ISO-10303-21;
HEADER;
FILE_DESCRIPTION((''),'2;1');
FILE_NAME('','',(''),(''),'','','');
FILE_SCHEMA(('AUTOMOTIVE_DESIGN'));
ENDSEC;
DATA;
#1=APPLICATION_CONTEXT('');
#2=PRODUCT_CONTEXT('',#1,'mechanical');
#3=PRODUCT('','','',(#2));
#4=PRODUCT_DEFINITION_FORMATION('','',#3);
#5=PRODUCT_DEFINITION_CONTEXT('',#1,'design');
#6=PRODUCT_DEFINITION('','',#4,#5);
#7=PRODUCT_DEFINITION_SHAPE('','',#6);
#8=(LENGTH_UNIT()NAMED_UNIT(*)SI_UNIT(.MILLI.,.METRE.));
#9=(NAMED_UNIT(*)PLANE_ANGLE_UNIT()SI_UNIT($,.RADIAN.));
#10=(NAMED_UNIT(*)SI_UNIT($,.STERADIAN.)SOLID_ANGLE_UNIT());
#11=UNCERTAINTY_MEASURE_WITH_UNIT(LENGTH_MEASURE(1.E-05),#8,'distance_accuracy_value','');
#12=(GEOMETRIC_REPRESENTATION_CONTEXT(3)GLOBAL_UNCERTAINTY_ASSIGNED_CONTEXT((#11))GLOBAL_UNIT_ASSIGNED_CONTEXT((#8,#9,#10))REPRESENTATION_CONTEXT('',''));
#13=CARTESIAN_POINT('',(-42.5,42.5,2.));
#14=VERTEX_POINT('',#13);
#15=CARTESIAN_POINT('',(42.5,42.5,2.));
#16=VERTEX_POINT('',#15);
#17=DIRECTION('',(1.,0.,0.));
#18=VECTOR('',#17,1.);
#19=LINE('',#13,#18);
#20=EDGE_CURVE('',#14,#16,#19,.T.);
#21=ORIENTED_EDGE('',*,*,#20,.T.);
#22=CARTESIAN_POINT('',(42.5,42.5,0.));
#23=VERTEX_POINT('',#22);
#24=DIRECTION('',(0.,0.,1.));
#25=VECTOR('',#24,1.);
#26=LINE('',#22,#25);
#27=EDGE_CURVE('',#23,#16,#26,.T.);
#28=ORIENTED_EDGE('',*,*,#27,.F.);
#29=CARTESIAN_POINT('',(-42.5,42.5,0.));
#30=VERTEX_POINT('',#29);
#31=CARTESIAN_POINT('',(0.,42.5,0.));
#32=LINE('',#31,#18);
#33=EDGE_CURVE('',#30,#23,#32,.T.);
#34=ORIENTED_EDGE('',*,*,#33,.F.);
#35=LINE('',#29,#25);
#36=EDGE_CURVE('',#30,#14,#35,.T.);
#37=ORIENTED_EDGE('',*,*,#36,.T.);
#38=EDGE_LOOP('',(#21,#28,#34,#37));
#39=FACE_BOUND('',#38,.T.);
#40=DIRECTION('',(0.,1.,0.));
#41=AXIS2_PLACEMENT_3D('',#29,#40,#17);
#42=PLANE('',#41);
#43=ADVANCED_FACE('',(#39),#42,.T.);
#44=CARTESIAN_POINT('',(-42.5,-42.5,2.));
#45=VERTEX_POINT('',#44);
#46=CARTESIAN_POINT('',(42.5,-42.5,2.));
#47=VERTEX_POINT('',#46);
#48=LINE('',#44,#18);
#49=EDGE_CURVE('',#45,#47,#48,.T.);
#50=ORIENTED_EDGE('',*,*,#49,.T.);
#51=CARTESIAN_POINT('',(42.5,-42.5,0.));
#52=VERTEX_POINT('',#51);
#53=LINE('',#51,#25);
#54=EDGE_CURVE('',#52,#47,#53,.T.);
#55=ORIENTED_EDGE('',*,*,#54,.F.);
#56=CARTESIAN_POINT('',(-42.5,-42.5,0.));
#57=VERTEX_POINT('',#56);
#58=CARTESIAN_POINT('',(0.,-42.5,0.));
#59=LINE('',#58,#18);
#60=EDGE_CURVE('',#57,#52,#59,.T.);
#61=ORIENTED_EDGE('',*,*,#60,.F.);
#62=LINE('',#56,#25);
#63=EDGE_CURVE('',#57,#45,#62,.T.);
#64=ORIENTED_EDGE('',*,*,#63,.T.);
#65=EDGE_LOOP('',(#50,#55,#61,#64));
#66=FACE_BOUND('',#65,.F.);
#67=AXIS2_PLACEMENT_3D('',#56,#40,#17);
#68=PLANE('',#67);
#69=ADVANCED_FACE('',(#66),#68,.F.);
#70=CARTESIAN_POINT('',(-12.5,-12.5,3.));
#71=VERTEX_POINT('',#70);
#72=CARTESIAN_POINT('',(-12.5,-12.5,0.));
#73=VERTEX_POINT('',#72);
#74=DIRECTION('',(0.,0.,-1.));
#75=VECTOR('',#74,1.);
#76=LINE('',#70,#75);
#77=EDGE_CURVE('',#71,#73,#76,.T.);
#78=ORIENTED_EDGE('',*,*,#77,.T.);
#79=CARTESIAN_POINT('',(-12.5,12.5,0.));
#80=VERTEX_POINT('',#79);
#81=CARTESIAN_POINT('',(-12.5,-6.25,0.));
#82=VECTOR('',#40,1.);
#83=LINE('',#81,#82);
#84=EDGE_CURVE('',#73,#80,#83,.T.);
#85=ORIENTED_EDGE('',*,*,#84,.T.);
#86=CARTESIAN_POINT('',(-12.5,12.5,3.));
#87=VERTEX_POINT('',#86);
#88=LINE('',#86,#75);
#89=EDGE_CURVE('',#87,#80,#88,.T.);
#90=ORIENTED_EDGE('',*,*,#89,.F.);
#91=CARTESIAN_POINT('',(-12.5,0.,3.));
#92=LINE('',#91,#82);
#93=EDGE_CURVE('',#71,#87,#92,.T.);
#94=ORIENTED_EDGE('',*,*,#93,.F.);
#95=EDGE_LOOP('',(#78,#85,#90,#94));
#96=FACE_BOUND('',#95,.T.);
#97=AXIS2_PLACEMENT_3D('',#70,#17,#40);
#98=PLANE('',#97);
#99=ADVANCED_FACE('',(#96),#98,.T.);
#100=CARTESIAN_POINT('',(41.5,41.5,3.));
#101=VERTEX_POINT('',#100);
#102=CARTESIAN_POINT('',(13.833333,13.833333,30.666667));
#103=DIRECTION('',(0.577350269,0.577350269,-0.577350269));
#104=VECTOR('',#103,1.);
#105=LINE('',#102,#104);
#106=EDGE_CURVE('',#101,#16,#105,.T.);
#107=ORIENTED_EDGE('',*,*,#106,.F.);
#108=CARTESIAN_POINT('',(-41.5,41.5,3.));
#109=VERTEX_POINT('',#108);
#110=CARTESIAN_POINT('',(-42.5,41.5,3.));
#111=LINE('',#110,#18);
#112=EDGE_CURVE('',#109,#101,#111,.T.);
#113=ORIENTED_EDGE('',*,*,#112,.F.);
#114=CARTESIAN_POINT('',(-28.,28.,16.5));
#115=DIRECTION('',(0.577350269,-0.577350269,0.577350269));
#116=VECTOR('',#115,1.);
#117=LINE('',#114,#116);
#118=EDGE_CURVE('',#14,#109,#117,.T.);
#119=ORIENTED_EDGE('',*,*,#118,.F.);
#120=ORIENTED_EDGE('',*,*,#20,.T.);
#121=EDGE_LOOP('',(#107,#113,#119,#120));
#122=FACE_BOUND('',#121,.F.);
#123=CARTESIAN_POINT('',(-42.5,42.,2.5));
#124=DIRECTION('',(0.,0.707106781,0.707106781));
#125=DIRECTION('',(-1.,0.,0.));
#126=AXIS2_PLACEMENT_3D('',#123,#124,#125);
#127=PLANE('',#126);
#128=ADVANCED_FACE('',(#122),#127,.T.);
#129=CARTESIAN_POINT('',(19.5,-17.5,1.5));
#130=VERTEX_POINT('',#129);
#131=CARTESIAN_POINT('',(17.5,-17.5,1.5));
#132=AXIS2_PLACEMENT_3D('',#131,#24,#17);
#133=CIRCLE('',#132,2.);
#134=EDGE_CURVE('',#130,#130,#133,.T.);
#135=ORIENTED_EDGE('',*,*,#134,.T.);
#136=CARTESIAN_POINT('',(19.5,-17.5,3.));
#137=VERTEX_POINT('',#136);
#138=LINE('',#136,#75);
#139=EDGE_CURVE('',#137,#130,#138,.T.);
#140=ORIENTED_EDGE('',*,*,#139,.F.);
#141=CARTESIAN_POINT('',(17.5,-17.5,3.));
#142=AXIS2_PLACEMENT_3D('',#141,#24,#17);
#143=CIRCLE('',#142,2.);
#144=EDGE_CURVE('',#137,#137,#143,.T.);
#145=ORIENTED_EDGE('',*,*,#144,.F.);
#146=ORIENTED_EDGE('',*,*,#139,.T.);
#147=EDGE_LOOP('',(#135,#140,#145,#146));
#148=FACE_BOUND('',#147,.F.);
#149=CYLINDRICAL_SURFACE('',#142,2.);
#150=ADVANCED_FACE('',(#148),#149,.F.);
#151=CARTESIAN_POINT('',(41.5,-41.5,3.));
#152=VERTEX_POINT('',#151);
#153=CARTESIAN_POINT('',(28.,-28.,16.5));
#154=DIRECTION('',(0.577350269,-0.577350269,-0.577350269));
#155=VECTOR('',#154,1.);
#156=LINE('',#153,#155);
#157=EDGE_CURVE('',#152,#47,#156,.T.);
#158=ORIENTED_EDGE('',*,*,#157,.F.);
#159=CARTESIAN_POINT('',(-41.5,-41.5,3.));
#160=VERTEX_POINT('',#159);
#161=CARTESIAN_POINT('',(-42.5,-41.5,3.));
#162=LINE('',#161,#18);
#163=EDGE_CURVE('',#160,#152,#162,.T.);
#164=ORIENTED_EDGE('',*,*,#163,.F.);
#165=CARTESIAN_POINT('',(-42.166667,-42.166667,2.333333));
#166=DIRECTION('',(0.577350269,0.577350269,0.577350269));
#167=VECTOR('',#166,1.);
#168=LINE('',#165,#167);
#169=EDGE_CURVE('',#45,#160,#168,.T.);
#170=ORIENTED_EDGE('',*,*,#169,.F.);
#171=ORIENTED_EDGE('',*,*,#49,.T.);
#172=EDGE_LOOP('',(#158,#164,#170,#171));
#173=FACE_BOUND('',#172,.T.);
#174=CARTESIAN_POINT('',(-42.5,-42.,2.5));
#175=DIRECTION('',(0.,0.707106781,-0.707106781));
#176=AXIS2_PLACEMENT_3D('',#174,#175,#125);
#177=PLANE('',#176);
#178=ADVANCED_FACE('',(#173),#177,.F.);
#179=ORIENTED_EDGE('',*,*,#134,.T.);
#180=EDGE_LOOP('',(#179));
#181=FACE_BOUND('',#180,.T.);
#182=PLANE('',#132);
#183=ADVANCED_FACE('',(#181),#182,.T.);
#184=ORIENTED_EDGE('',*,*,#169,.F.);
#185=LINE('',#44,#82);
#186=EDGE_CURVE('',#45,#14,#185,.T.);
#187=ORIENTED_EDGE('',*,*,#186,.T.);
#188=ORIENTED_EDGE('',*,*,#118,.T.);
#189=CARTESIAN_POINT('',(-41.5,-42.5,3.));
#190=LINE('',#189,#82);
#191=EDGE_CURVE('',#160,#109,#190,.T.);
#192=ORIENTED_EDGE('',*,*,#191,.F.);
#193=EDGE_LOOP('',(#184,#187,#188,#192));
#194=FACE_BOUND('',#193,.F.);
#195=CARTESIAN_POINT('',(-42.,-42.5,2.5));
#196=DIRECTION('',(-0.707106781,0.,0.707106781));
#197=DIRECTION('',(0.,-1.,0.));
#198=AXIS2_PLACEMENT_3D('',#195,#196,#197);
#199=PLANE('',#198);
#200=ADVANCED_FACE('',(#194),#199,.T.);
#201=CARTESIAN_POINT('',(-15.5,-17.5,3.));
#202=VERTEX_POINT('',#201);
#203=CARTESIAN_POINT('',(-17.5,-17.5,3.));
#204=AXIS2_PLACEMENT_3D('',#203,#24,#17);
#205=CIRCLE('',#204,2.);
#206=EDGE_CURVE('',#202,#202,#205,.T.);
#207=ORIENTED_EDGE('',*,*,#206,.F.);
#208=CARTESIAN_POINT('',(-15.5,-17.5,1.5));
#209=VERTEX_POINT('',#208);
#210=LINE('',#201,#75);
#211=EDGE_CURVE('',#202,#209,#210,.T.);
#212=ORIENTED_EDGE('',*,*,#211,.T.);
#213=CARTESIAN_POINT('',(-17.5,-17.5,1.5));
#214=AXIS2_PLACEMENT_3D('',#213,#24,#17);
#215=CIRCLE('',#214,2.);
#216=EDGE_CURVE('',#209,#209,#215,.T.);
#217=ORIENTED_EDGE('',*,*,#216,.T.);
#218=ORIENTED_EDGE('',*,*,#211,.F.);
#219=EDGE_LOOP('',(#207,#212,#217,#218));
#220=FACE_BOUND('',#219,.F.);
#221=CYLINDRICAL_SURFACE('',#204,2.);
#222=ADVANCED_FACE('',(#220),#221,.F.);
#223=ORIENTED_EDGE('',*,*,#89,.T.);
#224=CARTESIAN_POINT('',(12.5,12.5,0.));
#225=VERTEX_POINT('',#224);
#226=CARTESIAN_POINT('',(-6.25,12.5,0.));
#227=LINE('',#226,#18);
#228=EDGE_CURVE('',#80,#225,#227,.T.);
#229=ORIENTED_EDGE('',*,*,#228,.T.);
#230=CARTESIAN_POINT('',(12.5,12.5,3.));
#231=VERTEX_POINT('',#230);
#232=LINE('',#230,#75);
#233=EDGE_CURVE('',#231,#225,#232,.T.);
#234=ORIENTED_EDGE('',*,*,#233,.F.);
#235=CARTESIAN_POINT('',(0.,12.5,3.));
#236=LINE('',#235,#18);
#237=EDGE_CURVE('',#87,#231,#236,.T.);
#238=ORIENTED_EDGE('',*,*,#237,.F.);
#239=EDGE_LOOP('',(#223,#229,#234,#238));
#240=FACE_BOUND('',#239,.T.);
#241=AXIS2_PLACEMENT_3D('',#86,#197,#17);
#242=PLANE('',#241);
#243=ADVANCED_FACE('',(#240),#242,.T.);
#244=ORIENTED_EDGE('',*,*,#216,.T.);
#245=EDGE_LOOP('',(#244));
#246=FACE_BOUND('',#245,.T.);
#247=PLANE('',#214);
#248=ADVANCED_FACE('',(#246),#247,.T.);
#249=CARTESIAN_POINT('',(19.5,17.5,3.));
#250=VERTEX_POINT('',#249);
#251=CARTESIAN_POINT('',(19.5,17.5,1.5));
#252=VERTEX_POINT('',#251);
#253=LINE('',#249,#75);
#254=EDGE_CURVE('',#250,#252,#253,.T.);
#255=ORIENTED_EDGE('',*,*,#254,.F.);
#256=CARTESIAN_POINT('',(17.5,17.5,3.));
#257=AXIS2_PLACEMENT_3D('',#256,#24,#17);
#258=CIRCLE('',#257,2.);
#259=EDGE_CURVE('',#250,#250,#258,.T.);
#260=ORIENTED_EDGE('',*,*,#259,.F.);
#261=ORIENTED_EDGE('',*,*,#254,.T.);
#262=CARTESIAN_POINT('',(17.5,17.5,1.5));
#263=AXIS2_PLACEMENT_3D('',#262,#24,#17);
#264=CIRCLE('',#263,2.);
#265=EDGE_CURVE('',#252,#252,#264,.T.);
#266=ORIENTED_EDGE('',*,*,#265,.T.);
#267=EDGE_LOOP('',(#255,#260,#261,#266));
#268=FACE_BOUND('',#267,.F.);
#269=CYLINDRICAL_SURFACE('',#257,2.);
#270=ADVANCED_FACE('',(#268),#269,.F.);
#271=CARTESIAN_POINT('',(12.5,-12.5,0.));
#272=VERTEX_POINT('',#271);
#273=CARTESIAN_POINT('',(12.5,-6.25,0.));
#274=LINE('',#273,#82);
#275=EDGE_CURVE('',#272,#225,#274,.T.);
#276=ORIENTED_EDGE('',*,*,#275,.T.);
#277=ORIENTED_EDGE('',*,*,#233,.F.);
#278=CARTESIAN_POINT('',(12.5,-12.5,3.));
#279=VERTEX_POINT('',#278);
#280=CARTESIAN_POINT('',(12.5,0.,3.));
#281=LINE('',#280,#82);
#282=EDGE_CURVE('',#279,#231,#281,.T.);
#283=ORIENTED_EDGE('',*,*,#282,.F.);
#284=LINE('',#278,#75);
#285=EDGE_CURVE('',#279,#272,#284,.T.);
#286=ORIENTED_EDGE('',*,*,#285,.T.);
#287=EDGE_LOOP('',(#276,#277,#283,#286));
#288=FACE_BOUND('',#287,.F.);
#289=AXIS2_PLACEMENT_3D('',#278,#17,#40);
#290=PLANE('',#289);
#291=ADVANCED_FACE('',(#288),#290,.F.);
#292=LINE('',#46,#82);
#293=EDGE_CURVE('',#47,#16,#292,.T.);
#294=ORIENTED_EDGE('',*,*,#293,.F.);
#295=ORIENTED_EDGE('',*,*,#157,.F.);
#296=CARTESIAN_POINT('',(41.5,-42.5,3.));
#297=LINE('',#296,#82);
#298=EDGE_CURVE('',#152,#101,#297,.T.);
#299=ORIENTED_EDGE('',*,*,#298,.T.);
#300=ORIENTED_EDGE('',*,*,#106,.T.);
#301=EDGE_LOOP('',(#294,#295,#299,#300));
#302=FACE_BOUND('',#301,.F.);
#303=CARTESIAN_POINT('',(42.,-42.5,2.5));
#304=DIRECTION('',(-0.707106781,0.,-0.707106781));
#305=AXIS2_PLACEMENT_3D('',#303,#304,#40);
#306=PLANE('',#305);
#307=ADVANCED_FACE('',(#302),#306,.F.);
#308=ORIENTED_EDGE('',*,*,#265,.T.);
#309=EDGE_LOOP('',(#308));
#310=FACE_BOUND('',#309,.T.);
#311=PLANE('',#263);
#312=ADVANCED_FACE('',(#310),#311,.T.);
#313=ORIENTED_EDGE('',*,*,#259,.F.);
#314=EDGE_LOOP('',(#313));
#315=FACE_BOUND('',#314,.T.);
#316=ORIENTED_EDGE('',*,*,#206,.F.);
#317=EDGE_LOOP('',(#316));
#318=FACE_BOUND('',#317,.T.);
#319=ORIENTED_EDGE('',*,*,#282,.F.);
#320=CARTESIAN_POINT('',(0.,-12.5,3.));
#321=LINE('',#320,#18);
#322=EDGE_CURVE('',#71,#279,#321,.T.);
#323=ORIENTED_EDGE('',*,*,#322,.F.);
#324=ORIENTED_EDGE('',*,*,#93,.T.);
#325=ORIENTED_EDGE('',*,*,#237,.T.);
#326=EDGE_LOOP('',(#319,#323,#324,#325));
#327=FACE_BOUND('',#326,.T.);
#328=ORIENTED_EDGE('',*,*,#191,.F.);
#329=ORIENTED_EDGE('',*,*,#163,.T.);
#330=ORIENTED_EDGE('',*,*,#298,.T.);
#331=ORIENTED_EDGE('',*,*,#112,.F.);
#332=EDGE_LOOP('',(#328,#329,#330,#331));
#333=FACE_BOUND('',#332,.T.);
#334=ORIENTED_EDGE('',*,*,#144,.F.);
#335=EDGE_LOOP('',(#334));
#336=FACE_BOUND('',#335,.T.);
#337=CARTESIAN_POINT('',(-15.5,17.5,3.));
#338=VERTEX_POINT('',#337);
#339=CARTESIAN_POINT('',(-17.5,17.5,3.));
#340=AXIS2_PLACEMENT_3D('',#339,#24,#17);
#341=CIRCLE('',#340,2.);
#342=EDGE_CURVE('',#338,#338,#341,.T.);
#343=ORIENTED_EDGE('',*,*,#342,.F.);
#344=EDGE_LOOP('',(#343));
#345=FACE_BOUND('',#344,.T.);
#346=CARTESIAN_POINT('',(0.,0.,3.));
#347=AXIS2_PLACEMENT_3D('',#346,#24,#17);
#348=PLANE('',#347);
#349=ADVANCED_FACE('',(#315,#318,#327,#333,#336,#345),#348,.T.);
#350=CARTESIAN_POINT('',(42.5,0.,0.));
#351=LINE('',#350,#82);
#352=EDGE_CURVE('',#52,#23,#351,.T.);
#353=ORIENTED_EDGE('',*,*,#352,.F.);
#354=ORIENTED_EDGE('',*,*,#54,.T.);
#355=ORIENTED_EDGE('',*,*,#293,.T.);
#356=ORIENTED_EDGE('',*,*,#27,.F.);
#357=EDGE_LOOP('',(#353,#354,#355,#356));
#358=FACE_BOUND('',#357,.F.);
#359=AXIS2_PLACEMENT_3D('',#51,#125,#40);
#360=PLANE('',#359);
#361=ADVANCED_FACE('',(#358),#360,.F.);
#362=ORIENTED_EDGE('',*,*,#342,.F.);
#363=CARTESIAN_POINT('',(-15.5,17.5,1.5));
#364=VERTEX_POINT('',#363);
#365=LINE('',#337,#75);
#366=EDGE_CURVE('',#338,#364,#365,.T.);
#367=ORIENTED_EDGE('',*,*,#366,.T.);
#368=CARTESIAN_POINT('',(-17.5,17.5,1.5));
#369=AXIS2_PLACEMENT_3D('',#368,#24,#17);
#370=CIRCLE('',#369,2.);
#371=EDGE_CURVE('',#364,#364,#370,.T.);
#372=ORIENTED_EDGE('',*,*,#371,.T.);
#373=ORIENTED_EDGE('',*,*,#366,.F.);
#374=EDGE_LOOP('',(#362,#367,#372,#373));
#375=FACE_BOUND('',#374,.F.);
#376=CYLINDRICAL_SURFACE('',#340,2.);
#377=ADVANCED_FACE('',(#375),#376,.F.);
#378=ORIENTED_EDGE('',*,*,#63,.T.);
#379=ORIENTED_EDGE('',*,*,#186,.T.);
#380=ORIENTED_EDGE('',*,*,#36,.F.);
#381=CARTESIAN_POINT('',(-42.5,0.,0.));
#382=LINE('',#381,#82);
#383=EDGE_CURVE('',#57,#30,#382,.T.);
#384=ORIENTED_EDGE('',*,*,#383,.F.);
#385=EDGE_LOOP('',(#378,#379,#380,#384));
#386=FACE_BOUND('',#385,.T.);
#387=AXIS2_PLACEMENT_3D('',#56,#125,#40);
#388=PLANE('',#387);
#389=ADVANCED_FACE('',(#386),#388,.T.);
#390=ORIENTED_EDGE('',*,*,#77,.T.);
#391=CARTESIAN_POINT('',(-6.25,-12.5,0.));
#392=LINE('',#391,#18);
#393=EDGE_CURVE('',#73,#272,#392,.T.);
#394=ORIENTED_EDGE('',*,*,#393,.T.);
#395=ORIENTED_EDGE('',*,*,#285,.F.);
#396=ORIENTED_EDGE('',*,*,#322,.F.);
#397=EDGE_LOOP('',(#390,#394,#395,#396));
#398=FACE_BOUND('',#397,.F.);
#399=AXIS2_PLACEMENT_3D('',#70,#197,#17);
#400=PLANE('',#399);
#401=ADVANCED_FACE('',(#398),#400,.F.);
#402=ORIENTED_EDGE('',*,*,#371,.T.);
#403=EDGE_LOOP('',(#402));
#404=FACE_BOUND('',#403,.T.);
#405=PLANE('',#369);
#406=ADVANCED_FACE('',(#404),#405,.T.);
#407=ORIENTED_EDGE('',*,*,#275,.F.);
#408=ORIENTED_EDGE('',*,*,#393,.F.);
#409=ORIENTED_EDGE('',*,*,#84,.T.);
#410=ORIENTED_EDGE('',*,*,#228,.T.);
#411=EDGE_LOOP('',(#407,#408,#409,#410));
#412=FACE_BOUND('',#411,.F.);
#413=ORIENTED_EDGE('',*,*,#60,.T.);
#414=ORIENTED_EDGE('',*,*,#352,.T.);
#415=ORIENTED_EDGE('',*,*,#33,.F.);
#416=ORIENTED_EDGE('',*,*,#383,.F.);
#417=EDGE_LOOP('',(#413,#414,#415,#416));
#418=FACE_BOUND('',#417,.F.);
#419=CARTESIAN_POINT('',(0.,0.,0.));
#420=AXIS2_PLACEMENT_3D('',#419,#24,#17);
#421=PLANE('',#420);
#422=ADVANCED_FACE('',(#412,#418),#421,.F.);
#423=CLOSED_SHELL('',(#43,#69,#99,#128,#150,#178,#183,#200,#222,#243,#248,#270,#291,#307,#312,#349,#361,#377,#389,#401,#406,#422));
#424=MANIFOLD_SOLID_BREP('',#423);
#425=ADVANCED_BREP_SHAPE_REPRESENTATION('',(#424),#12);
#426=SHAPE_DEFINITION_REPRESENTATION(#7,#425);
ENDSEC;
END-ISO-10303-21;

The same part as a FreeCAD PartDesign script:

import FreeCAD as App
import Part
import Sketcher


def edges_at(feature, points):
    """Names of the edges that pass closest to the given points."""
    edges = feature.Shape.Edges
    near = lambda p: min(range(len(edges)), key=lambda i: edges[i].distToShape(Part.Vertex(*p))[0])
    return sorted({f"Edge{near(p) + 1}" for p in points})


def add_polygon(sketch, points):
    """Adds a closed chain of lines whose ends are joined by coincident constraints."""
    first, n = sketch.GeometryCount, len(points)
    for a, b in zip(points, points[1:] + points[:1]):
        sketch.addGeometry(Part.LineSegment(App.Vector(*a, 0), App.Vector(*b, 0)), False)
    for i in range(n):
        sketch.addConstraint(Sketcher.Constraint("Coincident", first + i, 2, first + (i + 1) % n, 1))

doc = App.newDocument("Part")
body = doc.addObject("PartDesign::Body", "Body")

# Sketch on XY plane
sketch1 = body.newObject("Sketcher::SketchObject", "Sketch")
sketch1.AttachmentSupport = (doc.getObject("XY_Plane"), [""])
sketch1.MapMode = "FlatFace"
add_polygon(sketch1, [(-42.5, 42.5), (-42.5, -42.5), (42.5, -42.5), (42.5, 42.5)])  # lines 0-3
sketch1.addConstraint([
    Sketcher.Constraint("Vertical", 0),
    Sketcher.Constraint("Horizontal", 1),
    Sketcher.Constraint("Vertical", 2),
    Sketcher.Constraint("Horizontal", 3),
    Sketcher.Constraint("Symmetric", 0, 2, 2, 2, -1, 1),
    Sketcher.Constraint("Equal", 3, 0),
    Sketcher.Constraint("DistanceX", 1, 1, 1, 2, 85.0),
])
pad1 = body.newObject("PartDesign::Pad", "Pad")
pad1.Profile = sketch1
pad1.Length = 3

# Sketch on XY plane
sketch2 = body.newObject("Sketcher::SketchObject", "Sketch001")
sketch2.AttachmentSupport = (doc.getObject("XY_Plane"), [""])
sketch2.MapMode = "FlatFace"
sketch2.AttachmentOffset = App.Placement(App.Vector(0, 0, 3), App.Rotation())
add_polygon(sketch2, [(-12.5, 12.5), (-12.5, -12.5), (12.5, -12.5), (12.5, 12.5)])  # lines 0-3
sketch2.addConstraint([
    Sketcher.Constraint("Vertical", 0),
    Sketcher.Constraint("Horizontal", 1),
    Sketcher.Constraint("Vertical", 2),
    Sketcher.Constraint("Horizontal", 3),
    Sketcher.Constraint("Symmetric", 0, 2, 2, 2, -1, 1),
    Sketcher.Constraint("Equal", 3, 0),
    Sketcher.Constraint("DistanceX", 1, 1, 1, 2, 25.0),
])
pocket1 = body.newObject("PartDesign::Pocket", "Pocket")
pocket1.Profile = sketch2
pocket1.Length = 5
doc.recompute()

chamfer = body.newObject("PartDesign::Chamfer", "Chamfer")
chamfer.Base = (pocket1, edges_at(pocket1, [
    (42.5, 0, 3),
    (0, -42.5, 3),
    (-42.5, 0, 3),
    (0, 42.5, 3),
]))
chamfer.Size = 1

# Sketch on XY plane
sketch3 = body.newObject("Sketcher::SketchObject", "Sketch002")
sketch3.AttachmentSupport = (doc.getObject("XY_Plane"), [""])
sketch3.MapMode = "FlatFace"
sketch3.AttachmentOffset = App.Placement(App.Vector(0, 0, 3), App.Rotation())
sketch3.addGeometry([
    Part.Circle(App.Vector(-17.5, 17.5, 0), App.Vector(0, 0, 1), 2),
    Part.Circle(App.Vector(-17.5, -17.5, 0), App.Vector(0, 0, 1), 2),
    Part.Circle(App.Vector(17.5, -17.5, 0), App.Vector(0, 0, 1), 2),
    Part.Circle(App.Vector(17.5, 17.5, 0), App.Vector(0, 0, 1), 2),
], False)
sketch3.addConstraint([
    Sketcher.Constraint("Equal", 0, 1),
    Sketcher.Constraint("Equal", 1, 2),
    Sketcher.Constraint("Equal", 2, 3),
    Sketcher.Constraint("Symmetric", 0, 3, 2, 3, -1, 1),
    Sketcher.Constraint("Symmetric", 1, 3, 3, 3, -1, 1),
    Sketcher.Constraint("Symmetric", 1, 3, 2, 3, -2),
    Sketcher.Constraint("Diameter", 0, 4.0),
    Sketcher.Constraint("DistanceY", 1, 3, 0, 3, 35.0),
    Sketcher.Constraint("DistanceX", 1, 3, 2, 3, 35.0),
])
pocket2 = body.newObject("PartDesign::Pocket", "Pocket001")
pocket2.Profile = sketch3
pocket2.Length = 1.5

doc.recompute()
